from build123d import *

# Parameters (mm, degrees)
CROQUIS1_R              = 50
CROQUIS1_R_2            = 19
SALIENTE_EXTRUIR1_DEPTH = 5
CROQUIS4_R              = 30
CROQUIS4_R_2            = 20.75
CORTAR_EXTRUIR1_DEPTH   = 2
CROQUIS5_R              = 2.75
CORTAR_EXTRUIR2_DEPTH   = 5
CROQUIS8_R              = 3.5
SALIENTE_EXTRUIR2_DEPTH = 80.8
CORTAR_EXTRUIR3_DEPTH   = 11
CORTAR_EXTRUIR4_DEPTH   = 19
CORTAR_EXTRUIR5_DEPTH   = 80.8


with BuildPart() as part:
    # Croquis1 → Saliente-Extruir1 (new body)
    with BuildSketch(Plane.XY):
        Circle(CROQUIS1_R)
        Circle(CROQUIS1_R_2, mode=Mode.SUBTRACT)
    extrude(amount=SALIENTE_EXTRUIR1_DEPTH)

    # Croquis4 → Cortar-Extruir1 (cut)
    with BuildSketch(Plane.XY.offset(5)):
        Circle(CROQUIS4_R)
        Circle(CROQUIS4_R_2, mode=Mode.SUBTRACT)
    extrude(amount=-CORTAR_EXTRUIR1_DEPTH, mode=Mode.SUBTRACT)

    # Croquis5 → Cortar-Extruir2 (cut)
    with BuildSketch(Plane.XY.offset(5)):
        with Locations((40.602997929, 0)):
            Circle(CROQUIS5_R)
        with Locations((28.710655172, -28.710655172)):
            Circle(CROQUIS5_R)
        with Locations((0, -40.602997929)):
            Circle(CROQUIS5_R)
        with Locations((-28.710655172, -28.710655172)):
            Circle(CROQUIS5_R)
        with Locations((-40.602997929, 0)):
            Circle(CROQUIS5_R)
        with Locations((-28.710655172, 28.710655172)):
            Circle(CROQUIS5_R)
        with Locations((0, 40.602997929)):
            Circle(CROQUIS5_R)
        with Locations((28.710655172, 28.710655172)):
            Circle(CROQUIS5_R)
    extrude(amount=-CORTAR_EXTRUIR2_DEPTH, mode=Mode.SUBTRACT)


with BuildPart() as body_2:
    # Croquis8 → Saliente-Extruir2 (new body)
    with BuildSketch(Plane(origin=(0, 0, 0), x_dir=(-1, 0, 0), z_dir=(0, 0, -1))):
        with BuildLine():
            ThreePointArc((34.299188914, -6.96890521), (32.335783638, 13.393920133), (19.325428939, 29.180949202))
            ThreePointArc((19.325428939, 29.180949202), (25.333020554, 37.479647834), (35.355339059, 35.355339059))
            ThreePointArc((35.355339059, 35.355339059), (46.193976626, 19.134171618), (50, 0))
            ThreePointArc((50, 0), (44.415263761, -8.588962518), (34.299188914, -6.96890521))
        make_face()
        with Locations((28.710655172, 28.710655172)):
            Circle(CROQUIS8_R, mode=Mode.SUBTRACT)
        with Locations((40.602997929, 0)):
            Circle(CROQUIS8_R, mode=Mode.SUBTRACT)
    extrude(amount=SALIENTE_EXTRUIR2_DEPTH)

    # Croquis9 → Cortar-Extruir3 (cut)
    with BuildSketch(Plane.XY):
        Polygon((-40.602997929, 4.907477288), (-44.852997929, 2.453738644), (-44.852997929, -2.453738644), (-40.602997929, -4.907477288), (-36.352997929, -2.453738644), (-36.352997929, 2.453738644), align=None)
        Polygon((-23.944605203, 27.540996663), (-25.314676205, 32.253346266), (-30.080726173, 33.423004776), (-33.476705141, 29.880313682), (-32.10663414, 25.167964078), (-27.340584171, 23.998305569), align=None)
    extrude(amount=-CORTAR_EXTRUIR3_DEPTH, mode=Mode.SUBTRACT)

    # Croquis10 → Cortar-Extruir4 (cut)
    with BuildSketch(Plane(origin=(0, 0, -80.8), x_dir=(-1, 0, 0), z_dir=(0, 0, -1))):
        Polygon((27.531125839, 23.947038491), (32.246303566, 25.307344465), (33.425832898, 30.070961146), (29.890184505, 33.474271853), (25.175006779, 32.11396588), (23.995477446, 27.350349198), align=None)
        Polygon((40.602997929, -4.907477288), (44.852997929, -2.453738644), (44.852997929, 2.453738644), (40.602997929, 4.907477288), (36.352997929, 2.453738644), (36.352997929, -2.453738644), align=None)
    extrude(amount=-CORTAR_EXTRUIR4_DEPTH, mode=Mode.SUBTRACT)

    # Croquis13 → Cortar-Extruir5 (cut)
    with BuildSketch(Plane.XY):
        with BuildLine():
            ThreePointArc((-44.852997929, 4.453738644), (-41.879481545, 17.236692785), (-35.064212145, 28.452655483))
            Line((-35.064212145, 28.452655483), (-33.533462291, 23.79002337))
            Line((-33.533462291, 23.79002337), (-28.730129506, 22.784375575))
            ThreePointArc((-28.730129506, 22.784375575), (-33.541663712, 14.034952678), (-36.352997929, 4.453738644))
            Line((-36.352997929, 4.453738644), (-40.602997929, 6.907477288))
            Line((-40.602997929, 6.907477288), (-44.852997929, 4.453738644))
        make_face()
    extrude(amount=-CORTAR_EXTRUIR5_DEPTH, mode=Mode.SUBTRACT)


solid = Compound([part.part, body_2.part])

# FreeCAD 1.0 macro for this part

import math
import FreeCAD as App
import Part
import Sketcher
from FreeCAD import Vector
Q = App.Units.Quantity

doc = App.newDocument("Part")
params = doc.addObject("Spreadsheet::Sheet", "Params")
for row, (alias, value) in enumerate([
    ("sketch1_diameter", "100 mm"),
    ("sketch1_diameter2", "38 mm"),
    ("pad1_length", "5 mm"),
    ("sketch2_diameter", "60 mm"),
    ("sketch2_diameter2", "41.5 mm"),
    ("pocket1_length", "2 mm"),
    ("sketch3_diameter", "5.5 mm"),
    ("pocket2_length", "5 mm"),
    ("sketch4_diameter", "7 mm"),
    ("sketch4_radius", "35 mm"),
    ("sketch4_radius2", "50 mm"),
    ("pad2_length", "80.8 mm"),
    ("pocket3_length", "11 mm"),
    ("pocket4_length", "19 mm"),
    ("pocket5_length", "80.8 mm"),
], start=1):
    params.set(f"A{row}", alias)
    params.set(f"B{row}", "=" + value)
    params.setAlias(f"B{row}", alias)

body = doc.addObject("PartDesign::Body", "Body")

# Sketch on XY plane
sketch1 = doc.addObject("Sketcher::SketchObject", "Sketch")
body.addObject(sketch1)
sketch1.AttachmentSupport = (doc.XY_Plane, [""])
sketch1.MapMode = "FlatFace"
sketch1.addGeometry(Part.Circle(Vector(0, 0, 0), Vector(0, 0, 1), 50), False)
sketch1.addGeometry(Part.Circle(Vector(0, 0, 0), Vector(0, 0, 1), 19), False)
sketch1.addConstraint(Sketcher.Constraint("Coincident", 0, 3, -1, 1))
sketch1.addConstraint(Sketcher.Constraint("Coincident", 1, 3, -1, 1))
sketch1.addConstraint(Sketcher.Constraint("Diameter", 0, Q("100 mm")))
sketch1.addConstraint(Sketcher.Constraint("Diameter", 1, Q("38 mm")))
sketch1.setExpression("Constraints[2]", "Params.sketch1_diameter")
sketch1.setExpression("Constraints[3]", "Params.sketch1_diameter2")
pad1 = doc.addObject("PartDesign::Pad", "Pad")
body.addObject(pad1)
pad1.Profile = sketch1
pad1.setExpression("Length", "Params.pad1_length")

# Sketch on XY plane
sketch2 = doc.addObject("Sketcher::SketchObject", "Sketch001")
body.addObject(sketch2)
sketch2.AttachmentSupport = (doc.XY_Plane, [""])
sketch2.MapMode = "FlatFace"
sketch2.AttachmentOffset = App.Placement(Vector(0, 0, 5), App.Rotation())
sketch2.addGeometry(Part.Circle(Vector(0, 0, 0), Vector(0, 0, 1), 30), False)
sketch2.addGeometry(Part.Circle(Vector(0, 0, 0), Vector(0, 0, 1), 20.75), False)
sketch2.addConstraint(Sketcher.Constraint("Coincident", 0, 3, -1, 1))
sketch2.addConstraint(Sketcher.Constraint("Coincident", 1, 3, -1, 1))
sketch2.addConstraint(Sketcher.Constraint("Diameter", 0, Q("60 mm")))
sketch2.addConstraint(Sketcher.Constraint("Diameter", 1, Q("41.5 mm")))
sketch2.setExpression("Constraints[2]", "Params.sketch2_diameter")
sketch2.setExpression("Constraints[3]", "Params.sketch2_diameter2")
pocket1 = doc.addObject("PartDesign::Pocket", "Pocket")
body.addObject(pocket1)
pocket1.Profile = sketch2
pocket1.setExpression("Length", "Params.pocket1_length")

# Sketch on XY plane
sketch3 = doc.addObject("Sketcher::SketchObject", "Sketch002")
body.addObject(sketch3)
sketch3.AttachmentSupport = (doc.XY_Plane, [""])
sketch3.MapMode = "FlatFace"
sketch3.AttachmentOffset = App.Placement(Vector(0, 0, 5), App.Rotation())
sketch3.addGeometry(Part.Circle(Vector(40.602998, 0, 0), Vector(0, 0, 1), 2.75), False)
sketch3.addGeometry(Part.Circle(Vector(28.710655, -28.710655, 0), Vector(0, 0, 1), 2.75), False)
sketch3.addGeometry(Part.Circle(Vector(0, -40.602998, 0), Vector(0, 0, 1), 2.75), False)
sketch3.addGeometry(Part.Circle(Vector(-28.710655, -28.710655, 0), Vector(0, 0, 1), 2.75), False)
sketch3.addGeometry(Part.Circle(Vector(-40.602998, 0, 0), Vector(0, 0, 1), 2.75), False)
sketch3.addGeometry(Part.Circle(Vector(-28.710655, 28.710655, 0), Vector(0, 0, 1), 2.75), False)
sketch3.addGeometry(Part.Circle(Vector(0, 40.602998, 0), Vector(0, 0, 1), 2.75), False)
sketch3.addGeometry(Part.Circle(Vector(28.710655, 28.710655, 0), Vector(0, 0, 1), 2.75), False)
sketch3.addConstraint(Sketcher.Constraint("Equal", 0, 1))
sketch3.addConstraint(Sketcher.Constraint("Equal", 1, 2))
sketch3.addConstraint(Sketcher.Constraint("Equal", 2, 3))
sketch3.addConstraint(Sketcher.Constraint("Equal", 3, 4))
sketch3.addConstraint(Sketcher.Constraint("Equal", 4, 5))
sketch3.addConstraint(Sketcher.Constraint("Equal", 5, 6))
sketch3.addConstraint(Sketcher.Constraint("Equal", 6, 7))
sketch3.addConstraint(Sketcher.Constraint("Symmetric", 0, 3, 4, 3, -1, 1))
sketch3.addConstraint(Sketcher.Constraint("Symmetric", 1, 3, 5, 3, -1, 1))
sketch3.addConstraint(Sketcher.Constraint("Symmetric", 2, 3, 6, 3, -1, 1))
sketch3.addConstraint(Sketcher.Constraint("Symmetric", 3, 3, 7, 3, -1, 1))
sketch3.addConstraint(Sketcher.Constraint("Symmetric", 1, 3, 3, 3, -2))
sketch3.addConstraint(Sketcher.Constraint("PointOnObject", 0, 3, -1))
sketch3.addConstraint(Sketcher.Constraint("PointOnObject", 2, 3, -2))
sketch3.addConstraint(Sketcher.Constraint("Diameter", 0, Q("5.5 mm")))
sketch3.addConstraint(Sketcher.Constraint("DistanceX", 3, 3, 1, 3, Q("57.42131 mm")))
sketch3.addConstraint(Sketcher.Constraint("DistanceY", 3, 3, 5, 3, Q("57.42131 mm")))
sketch3.addConstraint(Sketcher.Constraint("DistanceX", -1, 1, 0, 3, Q("40.602998 mm")))
sketch3.addConstraint(Sketcher.Constraint("DistanceY", 2, 3, -1, 1, Q("40.602998 mm")))
sketch3.setExpression("Constraints[14]", "Params.sketch3_diameter")
pocket2 = doc.addObject("PartDesign::Pocket", "Pocket001")
body.addObject(pocket2)
pocket2.Profile = sketch3
pocket2.setExpression("Length", "Params.pocket2_length")
body2 = doc.addObject("PartDesign::Body", "Body001")

# Sketch on XY plane
sketch4 = doc.addObject("Sketcher::SketchObject", "Sketch003")
body2.addObject(sketch4)
sketch4.AttachmentSupport = (doc.getObject("XY_Plane001"), [""])
sketch4.MapMode = "FlatFace"
sketch4.addGeometry(Part.ArcOfCircle(Part.Circle(Vector(0, 0, 0), Vector(0, 0, 1), 35), math.radians(123.514989), math.radians(191.485011)), False)
sketch4.addGeometry(Part.ArcOfCircle(Part.Circle(Vector(-40.602998, 0, 0), Vector(0, 0, 1), 9.397002), math.radians(-180), math.radians(-47.868694)), False)
sketch4.addGeometry(Part.ArcOfCircle(Part.Circle(Vector(0, 0, 0), Vector(0, 0, 1), 50), math.radians(135), math.radians(180)), False)
sketch4.addGeometry(Part.ArcOfCircle(Part.Circle(Vector(-28.710655, 28.710655, 0), Vector(0, 0, 1), 9.397002), math.radians(2.868694), math.radians(135)), False)
sketch4.addGeometry(Part.Circle(Vector(-40.602998, 0, 0), Vector(0, 0, 1), 3.5), False)
sketch4.addGeometry(Part.Circle(Vector(-28.710655, 28.710655, 0), Vector(0, 0, 1), 3.5), False)
sketch4.addConstraint(Sketcher.Constraint("Coincident", 0, 2, 1, 2))
sketch4.addConstraint(Sketcher.Constraint("Tangent", 1, 1, 2, 2))
sketch4.addConstraint(Sketcher.Constraint("Tangent", 2, 1, 3, 2))
sketch4.addConstraint(Sketcher.Constraint("Coincident", 3, 1, 0, 1))
sketch4.addConstraint(Sketcher.Constraint("Coincident", 0, 3, -1, 1))
sketch4.addConstraint(Sketcher.Constraint("Coincident", 2, 3, -1, 1))
sketch4.addConstraint(Sketcher.Constraint("Coincident", 4, 3, 1, 3))
sketch4.addConstraint(Sketcher.Constraint("Coincident", 5, 3, 3, 3))
sketch4.addConstraint(Sketcher.Constraint("Equal", 1, 3))
sketch4.addConstraint(Sketcher.Constraint("Equal", 4, 5))
sketch4.addConstraint(Sketcher.Constraint("PointOnObject", 1, 3, -1))
sketch4.addConstraint(Sketcher.Constraint("Diameter", 4, Q("7 mm")))
sketch4.addConstraint(Sketcher.Constraint("Radius", 0, Q("35 mm")))
sketch4.addConstraint(Sketcher.Constraint("Radius", 2, Q("50 mm")))
sketch4.addConstraint(Sketcher.Constraint("Radius", 1, Q("9.397002 mm")))
sketch4.addConstraint(Sketcher.Constraint("DistanceX", 2, 1, -1, 1, Q("35.355339 mm")))
sketch4.setExpression("Constraints[11]", "Params.sketch4_diameter")
sketch4.setExpression("Constraints[12]", "Params.sketch4_radius")
sketch4.setExpression("Constraints[13]", "Params.sketch4_radius2")
pad2 = doc.addObject("PartDesign::Pad", "Pad001")
body2.addObject(pad2)
pad2.Profile = sketch4
pad2.setExpression("Length", "Params.pad2_length")
pad2.Reversed = True

# Sketch on XY plane
sketch5 = doc.addObject("Sketcher::SketchObject", "Sketch004")
body2.addObject(sketch5)
sketch5.AttachmentSupport = (doc.getObject("XY_Plane001"), [""])
sketch5.MapMode = "FlatFace"
sketch5.addGeometry(Part.LineSegment(Vector(-40.602998, 4.907477, 0), Vector(-44.852998, 2.453739, 0)), False)
sketch5.addGeometry(Part.LineSegment(Vector(-44.852998, 2.453739, 0), Vector(-44.852998, -2.453739, 0)), False)
sketch5.addGeometry(Part.LineSegment(Vector(-44.852998, -2.453739, 0), Vector(-40.602998, -4.907477, 0)), False)
sketch5.addGeometry(Part.LineSegment(Vector(-40.602998, -4.907477, 0), Vector(-36.352998, -2.453739, 0)), False)
sketch5.addGeometry(Part.LineSegment(Vector(-36.352998, -2.453739, 0), Vector(-36.352998, 2.453739, 0)), False)
sketch5.addGeometry(Part.LineSegment(Vector(-36.352998, 2.453739, 0), Vector(-40.602998, 4.907477, 0)), False)
sketch5.addGeometry(Part.LineSegment(Vector(-23.944605, 27.540997, 0), Vector(-25.314676, 32.253346, 0)), False)
sketch5.addGeometry(Part.LineSegment(Vector(-25.314676, 32.253346, 0), Vector(-30.080726, 33.423005, 0)), False)
sketch5.addGeometry(Part.LineSegment(Vector(-30.080726, 33.423005, 0), Vector(-33.476705, 29.880314, 0)), False)
sketch5.addGeometry(Part.LineSegment(Vector(-33.476705, 29.880314, 0), Vector(-32.106634, 25.167964, 0)), False)
sketch5.addGeometry(Part.LineSegment(Vector(-32.106634, 25.167964, 0), Vector(-27.340584, 23.998306, 0)), False)
sketch5.addGeometry(Part.LineSegment(Vector(-27.340584, 23.998306, 0), Vector(-23.944605, 27.540997, 0)), False)
sketch5.addConstraint(Sketcher.Constraint("Coincident", 0, 2, 1, 1))
sketch5.addConstraint(Sketcher.Constraint("Coincident", 1, 2, 2, 1))
sketch5.addConstraint(Sketcher.Constraint("Coincident", 2, 2, 3, 1))
sketch5.addConstraint(Sketcher.Constraint("Coincident", 3, 2, 4, 1))
sketch5.addConstraint(Sketcher.Constraint("Coincident", 4, 2, 5, 1))
sketch5.addConstraint(Sketcher.Constraint("Coincident", 5, 2, 0, 1))
sketch5.addConstraint(Sketcher.Constraint("Coincident", 6, 2, 7, 1))
sketch5.addConstraint(Sketcher.Constraint("Coincident", 7, 2, 8, 1))
sketch5.addConstraint(Sketcher.Constraint("Coincident", 8, 2, 9, 1))
sketch5.addConstraint(Sketcher.Constraint("Coincident", 9, 2, 10, 1))
sketch5.addConstraint(Sketcher.Constraint("Coincident", 10, 2, 11, 1))
sketch5.addConstraint(Sketcher.Constraint("Coincident", 11, 2, 6, 1))
sketch5.addConstraint(Sketcher.Constraint("Vertical", 1))
sketch5.addConstraint(Sketcher.Constraint("Vertical", 4))
sketch5.addConstraint(Sketcher.Constraint("Symmetric", 2, 2, 5, 2, -1))
sketch5.addConstraint(Sketcher.Constraint("Parallel", 0, 3))
sketch5.addConstraint(Sketcher.Constraint("Parallel", 2, 5))
sketch5.addConstraint(Sketcher.Constraint("Parallel", 6, 9))
sketch5.addConstraint(Sketcher.Constraint("Parallel", 7, 10))
sketch5.addConstraint(Sketcher.Constraint("Parallel", 8, 11))
sketch5.addConstraint(Sketcher.Constraint("Horizontal", 1, 2, 3, 2))
sketch5.addConstraint(Sketcher.Constraint("Horizontal", 0, 2, 4, 2))
sketch5.addConstraint(Sketcher.Constraint("Equal", 5, 6))
sketch5.addConstraint(Sketcher.Constraint("Equal", 6, 7))
sketch5.addConstraint(Sketcher.Constraint("Equal", 7, 8))
sketch5.addConstraint(Sketcher.Constraint("Equal", 8, 9))
sketch5.addConstraint(Sketcher.Constraint("Angle", 0, Q("-150 deg")))
sketch5.addConstraint(Sketcher.Constraint("DistanceX", 1, 2, 3, 2, Q("8.5 mm")))
sketch5.addConstraint(Sketcher.Constraint("DistanceY", 10, 2, 7, 2, Q("9.424699 mm")))
sketch5.addConstraint(Sketcher.Constraint("DistanceX", 8, 2, 11, 2, Q("9.5321 mm")))
sketch5.addConstraint(Sketcher.Constraint("DistanceY", 1, 2, 1, 1, Q("4.907477 mm")))
sketch5.addConstraint(Sketcher.Constraint("DistanceX", 5, 2, 6, 2, Q("15.288322 mm")))
sketch5.addConstraint(Sketcher.Constraint("DistanceY", 5, 2, 6, 2, Q("27.345869 mm")))
sketch5.addConstraint(Sketcher.Constraint("DistanceX", 7, 2, 6, 2, Q("4.76605 mm")))
sketch5.addConstraint(Sketcher.Constraint("DistanceX", 0, 2, -1, 1, Q("44.852998 mm")))
pocket3 = doc.addObject("PartDesign::Pocket", "Pocket002")
body2.addObject(pocket3)
pocket3.Profile = sketch5
pocket3.setExpression("Length", "Params.pocket3_length")

# Sketch on XY plane
sketch6 = doc.addObject("Sketcher::SketchObject", "Sketch005")
body2.addObject(sketch6)
sketch6.AttachmentSupport = (doc.getObject("XY_Plane001"), [""])
sketch6.MapMode = "FlatFace"
sketch6.AttachmentOffset = App.Placement(Vector(0, 0, -80.8), App.Rotation())
sketch6.addGeometry(Part.LineSegment(Vector(-27.531126, 23.947038, 0), Vector(-32.246304, 25.307344, 0)), False)
sketch6.addGeometry(Part.LineSegment(Vector(-32.246304, 25.307344, 0), Vector(-33.425833, 30.070961, 0)), False)
sketch6.addGeometry(Part.LineSegment(Vector(-33.425833, 30.070961, 0), Vector(-29.890185, 33.474272, 0)), False)
sketch6.addGeometry(Part.LineSegment(Vector(-29.890185, 33.474272, 0), Vector(-25.175007, 32.113966, 0)), False)
sketch6.addGeometry(Part.LineSegment(Vector(-25.175007, 32.113966, 0), Vector(-23.995477, 27.350349, 0)), False)
sketch6.addGeometry(Part.LineSegment(Vector(-23.995477, 27.350349, 0), Vector(-27.531126, 23.947038, 0)), False)
sketch6.addGeometry(Part.LineSegment(Vector(-40.602998, -4.907477, 0), Vector(-44.852998, -2.453739, 0)), False)
sketch6.addGeometry(Part.LineSegment(Vector(-44.852998, -2.453739, 0), Vector(-44.852998, 2.453739, 0)), False)
sketch6.addGeometry(Part.LineSegment(Vector(-44.852998, 2.453739, 0), Vector(-40.602998, 4.907477, 0)), False)
sketch6.addGeometry(Part.LineSegment(Vector(-40.602998, 4.907477, 0), Vector(-36.352998, 2.453739, 0)), False)
sketch6.addGeometry(Part.LineSegment(Vector(-36.352998, 2.453739, 0), Vector(-36.352998, -2.453739, 0)), False)
sketch6.addGeometry(Part.LineSegment(Vector(-36.352998, -2.453739, 0), Vector(-40.602998, -4.907477, 0)), False)
sketch6.addConstraint(Sketcher.Constraint("Coincident", 0, 2, 1, 1))
sketch6.addConstraint(Sketcher.Constraint("Coincident", 1, 2, 2, 1))
sketch6.addConstraint(Sketcher.Constraint("Coincident", 2, 2, 3, 1))
sketch6.addConstraint(Sketcher.Constraint("Coincident", 3, 2, 4, 1))
sketch6.addConstraint(Sketcher.Constraint("Coincident", 4, 2, 5, 1))
sketch6.addConstraint(Sketcher.Constraint("Coincident", 5, 2, 0, 1))
sketch6.addConstraint(Sketcher.Constraint("Coincident", 6, 2, 7, 1))
sketch6.addConstraint(Sketcher.Constraint("Coincident", 7, 2, 8, 1))
sketch6.addConstraint(Sketcher.Constraint("Coincident", 8, 2, 9, 1))
sketch6.addConstraint(Sketcher.Constraint("Coincident", 9, 2, 10, 1))
sketch6.addConstraint(Sketcher.Constraint("Coincident", 10, 2, 11, 1))
sketch6.addConstraint(Sketcher.Constraint("Coincident", 11, 2, 6, 1))
sketch6.addConstraint(Sketcher.Constraint("Vertical", 7))
sketch6.addConstraint(Sketcher.Constraint("Vertical", 10))
sketch6.addConstraint(Sketcher.Constraint("Symmetric", 8, 2, 11, 2, -1))
sketch6.addConstraint(Sketcher.Constraint("Parallel", 0, 3))
sketch6.addConstraint(Sketcher.Constraint("Parallel", 1, 4))
sketch6.addConstraint(Sketcher.Constraint("Parallel", 2, 5))
sketch6.addConstraint(Sketcher.Constraint("Parallel", 6, 9))
sketch6.addConstraint(Sketcher.Constraint("Parallel", 8, 11))
sketch6.addConstraint(Sketcher.Constraint("Horizontal", 7, 2, 9, 2))
sketch6.addConstraint(Sketcher.Constraint("Horizontal", 6, 2, 10, 2))
sketch6.addConstraint(Sketcher.Constraint("Equal", 0, 1))
sketch6.addConstraint(Sketcher.Constraint("Equal", 1, 2))
sketch6.addConstraint(Sketcher.Constraint("Equal", 2, 3))
sketch6.addConstraint(Sketcher.Constraint("Equal", 5, 6))
sketch6.addConstraint(Sketcher.Constraint("Angle", 6, Q("150 deg")))
sketch6.addConstraint(Sketcher.Constraint("DistanceX", 7, 2, 9, 2, Q("8.5 mm")))
sketch6.addConstraint(Sketcher.Constraint("DistanceY", 6, 2, 1, 2, Q("32.5247 mm")))
sketch6.addConstraint(Sketcher.Constraint("DistanceY", 7, 2, 5, 2, Q("21.4933 mm")))
sketch6.addConstraint(Sketcher.Constraint("DistanceY", 7, 1, 7, 2, Q("4.907477 mm")))
sketch6.addConstraint(Sketcher.Constraint("DistanceY", -1, 1, 2, 2, Q("33.474272 mm")))
sketch6.addConstraint(Sketcher.Constraint("DistanceX", 1, 2, 0, 2, Q("1.179529 mm")))
sketch6.addConstraint(Sketcher.Constraint("DistanceX", 6, 2, 4, 2, Q("20.85752 mm")))
sketch6.addConstraint(Sketcher.Constraint("DistanceX", 0, 2, -1, 1, Q("32.246304 mm")))
pocket4 = doc.addObject("PartDesign::Pocket", "Pocket003")
body2.addObject(pocket4)
pocket4.Profile = sketch6
pocket4.setExpression("Length", "Params.pocket4_length")
pocket4.Reversed = True

# Sketch on XY plane
sketch7 = doc.addObject("Sketcher::SketchObject", "Sketch006")
body2.addObject(sketch7)
sketch7.AttachmentSupport = (doc.getObject("XY_Plane001"), [""])
sketch7.MapMode = "FlatFace"
sketch7.addGeometry(Part.ArcOfCircle(Part.Circle(Vector(-3.439538, 1.557636, 0), Vector(0, 0, 1), 41.514601), math.radians(139.620693), math.radians(175.999737)), False)
sketch7.addGeometry(Part.LineSegment(Vector(-44.852998, 4.453739, 0), Vector(-40.602998, 6.907477, 0)), False)
sketch7.addGeometry(Part.LineSegment(Vector(-40.602998, 6.907477, 0), Vector(-36.352998, 4.453739, 0)), False)
sketch7.addGeometry(Part.ArcOfCircle(Part.Circle(Vector(8.955718, -3.637753, 0), Vector(0, 0, 1), 46.025558), math.radians(144.965111), math.radians(169.874533)), False)
sketch7.addGeometry(Part.LineSegment(Vector(-28.73013, 22.784376, 0), Vector(-33.533462, 23.790023, 0)), False)
sketch7.addGeometry(Part.LineSegment(Vector(-33.533462, 23.790023, 0), Vector(-35.064212, 28.452655, 0)), False)
sketch7.addConstraint(Sketcher.Constraint("Coincident", 0, 2, 1, 1))
sketch7.addConstraint(Sketcher.Constraint("Coincident", 1, 2, 2, 1))
sketch7.addConstraint(Sketcher.Constraint("Coincident", 2, 2, 3, 2))
sketch7.addConstraint(Sketcher.Constraint("Coincident", 3, 1, 4, 1))
sketch7.addConstraint(Sketcher.Constraint("Coincident", 4, 2, 5, 1))
sketch7.addConstraint(Sketcher.Constraint("Coincident", 5, 2, 0, 1))
sketch7.addConstraint(Sketcher.Constraint("Horizontal", 0, 2, 2, 2))
sketch7.addConstraint(Sketcher.Constraint("Equal", 1, 2))
sketch7.addConstraint(Sketcher.Constraint("Equal", 2, 4))
sketch7.addConstraint(Sketcher.Constraint("Equal", 4, 5))
sketch7.addConstraint(Sketcher.Constraint("Angle", 1, Q("30 deg")))
sketch7.addConstraint(Sketcher.Constraint("Radius", 0, Q("41.514601 mm")))
sketch7.addConstraint(Sketcher.Constraint("DistanceX", 0, 2, 2, 2, Q("8.5 mm")))
sketch7.addConstraint(Sketcher.Constraint("Radius", 3, Q("46.025558 mm")))
sketch7.addConstraint(Sketcher.Constraint("DistanceY", 1, 2, 3, 1, Q("15.876898 mm")))
sketch7.addConstraint(Sketcher.Constraint("DistanceX", 0, 3, -1, 1, Q("3.439538 mm")))
sketch7.addConstraint(Sketcher.Constraint("DistanceX", -1, 1, 3, 3, Q("8.955718 mm")))
sketch7.addConstraint(Sketcher.Constraint("DistanceY", -1, 1, 0, 2, Q("4.453739 mm")))
sketch7.addConstraint(Sketcher.Constraint("DistanceX", 3, 1, -1, 1, Q("28.73013 mm")))
sketch7.addConstraint(Sketcher.Constraint("DistanceX", 5, 2, 4, 2, Q("1.53075 mm")))
pocket5 = doc.addObject("PartDesign::Pocket", "Pocket004")
body2.addObject(pocket5)
pocket5.Profile = sketch7
pocket5.setExpression("Length", "Params.pocket5_length")

doc.recompute()
